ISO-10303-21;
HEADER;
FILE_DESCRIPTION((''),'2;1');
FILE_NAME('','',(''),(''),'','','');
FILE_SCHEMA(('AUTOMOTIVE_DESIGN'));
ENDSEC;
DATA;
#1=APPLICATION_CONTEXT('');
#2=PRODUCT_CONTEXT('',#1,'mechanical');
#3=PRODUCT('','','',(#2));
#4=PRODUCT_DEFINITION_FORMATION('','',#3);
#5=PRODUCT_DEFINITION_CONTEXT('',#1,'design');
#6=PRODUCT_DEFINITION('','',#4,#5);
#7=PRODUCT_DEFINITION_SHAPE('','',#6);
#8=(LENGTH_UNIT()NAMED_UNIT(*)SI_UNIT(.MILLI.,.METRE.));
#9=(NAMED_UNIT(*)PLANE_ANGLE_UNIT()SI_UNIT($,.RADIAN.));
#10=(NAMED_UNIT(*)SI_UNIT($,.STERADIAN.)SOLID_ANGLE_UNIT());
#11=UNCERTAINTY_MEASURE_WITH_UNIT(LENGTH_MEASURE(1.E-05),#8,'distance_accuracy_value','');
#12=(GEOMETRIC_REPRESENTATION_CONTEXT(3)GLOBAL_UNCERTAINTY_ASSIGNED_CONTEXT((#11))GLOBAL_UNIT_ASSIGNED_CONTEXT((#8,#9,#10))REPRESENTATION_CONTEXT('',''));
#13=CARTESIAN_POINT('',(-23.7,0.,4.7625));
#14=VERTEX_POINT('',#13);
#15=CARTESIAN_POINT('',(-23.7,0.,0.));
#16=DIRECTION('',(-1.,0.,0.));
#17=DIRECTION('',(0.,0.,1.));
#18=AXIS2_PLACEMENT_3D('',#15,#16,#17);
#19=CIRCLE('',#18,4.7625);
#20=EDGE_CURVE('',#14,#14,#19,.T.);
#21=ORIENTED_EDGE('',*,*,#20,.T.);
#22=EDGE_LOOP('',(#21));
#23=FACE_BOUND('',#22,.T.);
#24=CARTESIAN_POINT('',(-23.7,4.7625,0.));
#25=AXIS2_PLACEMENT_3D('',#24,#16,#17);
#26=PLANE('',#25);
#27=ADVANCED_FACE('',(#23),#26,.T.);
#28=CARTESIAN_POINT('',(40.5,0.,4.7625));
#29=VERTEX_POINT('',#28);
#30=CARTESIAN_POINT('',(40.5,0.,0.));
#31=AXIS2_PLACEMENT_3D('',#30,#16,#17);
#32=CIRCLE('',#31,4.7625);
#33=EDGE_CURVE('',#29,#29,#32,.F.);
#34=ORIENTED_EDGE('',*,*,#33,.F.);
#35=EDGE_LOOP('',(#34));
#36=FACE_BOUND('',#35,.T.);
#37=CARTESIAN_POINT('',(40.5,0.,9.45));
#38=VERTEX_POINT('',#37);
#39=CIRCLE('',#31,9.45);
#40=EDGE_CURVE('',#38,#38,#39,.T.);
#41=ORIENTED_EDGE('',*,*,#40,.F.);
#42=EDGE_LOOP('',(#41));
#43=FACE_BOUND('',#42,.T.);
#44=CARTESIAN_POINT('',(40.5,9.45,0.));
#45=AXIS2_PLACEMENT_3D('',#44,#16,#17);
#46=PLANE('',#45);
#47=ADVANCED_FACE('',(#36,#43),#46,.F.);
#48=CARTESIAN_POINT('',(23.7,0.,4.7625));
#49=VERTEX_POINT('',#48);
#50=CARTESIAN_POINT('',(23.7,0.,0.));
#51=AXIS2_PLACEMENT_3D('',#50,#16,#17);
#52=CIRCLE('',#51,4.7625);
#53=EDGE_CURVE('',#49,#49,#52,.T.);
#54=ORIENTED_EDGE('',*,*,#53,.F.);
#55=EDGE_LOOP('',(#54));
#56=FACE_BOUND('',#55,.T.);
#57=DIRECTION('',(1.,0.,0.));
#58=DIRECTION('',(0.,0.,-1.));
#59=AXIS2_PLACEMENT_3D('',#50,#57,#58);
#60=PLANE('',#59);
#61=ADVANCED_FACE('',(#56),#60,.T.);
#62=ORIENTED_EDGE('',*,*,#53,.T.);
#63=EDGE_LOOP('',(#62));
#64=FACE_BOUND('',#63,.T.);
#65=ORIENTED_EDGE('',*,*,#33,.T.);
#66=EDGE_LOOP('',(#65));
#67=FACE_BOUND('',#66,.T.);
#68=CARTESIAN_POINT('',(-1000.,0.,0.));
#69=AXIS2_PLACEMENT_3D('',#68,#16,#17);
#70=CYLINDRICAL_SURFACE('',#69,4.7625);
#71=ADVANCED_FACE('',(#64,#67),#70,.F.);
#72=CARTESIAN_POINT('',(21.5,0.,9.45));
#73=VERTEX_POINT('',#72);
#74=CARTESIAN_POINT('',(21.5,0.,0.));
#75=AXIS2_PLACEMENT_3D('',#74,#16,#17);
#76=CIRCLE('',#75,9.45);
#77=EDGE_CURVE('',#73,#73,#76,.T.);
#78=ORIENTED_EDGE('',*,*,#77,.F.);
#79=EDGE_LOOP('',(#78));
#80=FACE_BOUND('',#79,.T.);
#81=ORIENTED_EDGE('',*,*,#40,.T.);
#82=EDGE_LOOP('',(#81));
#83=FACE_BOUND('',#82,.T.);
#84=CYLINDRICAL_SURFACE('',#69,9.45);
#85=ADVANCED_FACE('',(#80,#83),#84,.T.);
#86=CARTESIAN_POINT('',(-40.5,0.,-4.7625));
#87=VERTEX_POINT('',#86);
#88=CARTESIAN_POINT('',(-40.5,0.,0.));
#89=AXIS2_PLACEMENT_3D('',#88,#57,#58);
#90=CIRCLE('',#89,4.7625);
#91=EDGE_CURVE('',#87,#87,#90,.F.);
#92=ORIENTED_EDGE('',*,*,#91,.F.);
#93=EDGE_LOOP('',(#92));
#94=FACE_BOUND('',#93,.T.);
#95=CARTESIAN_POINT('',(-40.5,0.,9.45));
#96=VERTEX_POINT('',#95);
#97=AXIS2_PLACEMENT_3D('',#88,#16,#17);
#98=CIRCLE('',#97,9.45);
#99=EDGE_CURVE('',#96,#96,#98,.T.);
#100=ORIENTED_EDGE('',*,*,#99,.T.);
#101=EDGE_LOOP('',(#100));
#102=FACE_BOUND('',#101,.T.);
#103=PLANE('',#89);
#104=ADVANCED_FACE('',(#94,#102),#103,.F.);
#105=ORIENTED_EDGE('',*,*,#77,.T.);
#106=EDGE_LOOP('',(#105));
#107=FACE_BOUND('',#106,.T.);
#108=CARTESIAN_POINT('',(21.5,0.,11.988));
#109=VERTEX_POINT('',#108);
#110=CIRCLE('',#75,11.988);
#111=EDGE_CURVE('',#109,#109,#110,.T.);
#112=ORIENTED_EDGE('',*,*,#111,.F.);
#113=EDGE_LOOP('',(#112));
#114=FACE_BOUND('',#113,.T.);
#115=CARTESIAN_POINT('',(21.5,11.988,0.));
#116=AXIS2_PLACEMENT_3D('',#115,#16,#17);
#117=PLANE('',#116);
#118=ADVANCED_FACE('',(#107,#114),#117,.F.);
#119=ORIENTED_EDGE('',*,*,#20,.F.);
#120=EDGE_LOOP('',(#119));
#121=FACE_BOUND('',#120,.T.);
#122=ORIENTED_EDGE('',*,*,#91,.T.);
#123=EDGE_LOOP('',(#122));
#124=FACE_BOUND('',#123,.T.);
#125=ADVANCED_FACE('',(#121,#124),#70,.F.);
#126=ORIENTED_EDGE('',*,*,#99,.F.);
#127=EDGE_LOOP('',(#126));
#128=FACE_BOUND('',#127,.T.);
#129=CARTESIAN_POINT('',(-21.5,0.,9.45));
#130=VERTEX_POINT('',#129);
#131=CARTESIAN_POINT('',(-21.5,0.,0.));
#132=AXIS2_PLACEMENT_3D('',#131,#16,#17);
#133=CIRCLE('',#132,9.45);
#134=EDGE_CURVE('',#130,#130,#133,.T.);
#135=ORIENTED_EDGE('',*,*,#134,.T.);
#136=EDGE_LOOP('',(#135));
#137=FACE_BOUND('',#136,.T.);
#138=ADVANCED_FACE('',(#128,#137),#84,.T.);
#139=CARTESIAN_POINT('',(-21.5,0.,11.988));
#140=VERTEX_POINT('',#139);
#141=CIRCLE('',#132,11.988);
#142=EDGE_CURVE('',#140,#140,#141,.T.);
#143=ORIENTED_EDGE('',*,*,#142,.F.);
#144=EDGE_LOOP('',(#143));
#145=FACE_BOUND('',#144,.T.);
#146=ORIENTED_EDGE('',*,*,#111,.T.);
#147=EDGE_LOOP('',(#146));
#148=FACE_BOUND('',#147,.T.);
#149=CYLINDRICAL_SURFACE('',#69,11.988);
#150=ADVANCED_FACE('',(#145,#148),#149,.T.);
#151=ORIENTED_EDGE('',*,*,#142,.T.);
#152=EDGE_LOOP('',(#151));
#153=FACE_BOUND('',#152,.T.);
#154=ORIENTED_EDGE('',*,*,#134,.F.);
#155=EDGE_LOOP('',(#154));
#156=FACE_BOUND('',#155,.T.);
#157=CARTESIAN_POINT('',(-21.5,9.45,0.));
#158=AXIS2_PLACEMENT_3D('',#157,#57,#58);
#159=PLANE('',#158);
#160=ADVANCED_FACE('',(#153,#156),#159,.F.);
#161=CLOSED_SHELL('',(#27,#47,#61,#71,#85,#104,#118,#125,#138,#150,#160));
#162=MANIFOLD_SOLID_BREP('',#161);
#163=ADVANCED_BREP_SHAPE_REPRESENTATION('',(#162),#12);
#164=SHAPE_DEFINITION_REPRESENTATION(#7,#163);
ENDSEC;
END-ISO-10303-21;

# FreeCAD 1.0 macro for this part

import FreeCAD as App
import Part
import Sketcher
from FreeCAD import Vector
Q = App.Units.Quantity

doc = App.newDocument("Part")
body = doc.addObject("PartDesign::Body", "Body")

# Sketch on XY plane
sketch1 = body.newObject("Sketcher::SketchObject", "Sketch")
sketch1.AttachmentSupport = (doc.getObject("XY_Plane"), [""])
sketch1.MapMode = "FlatFace"
sketch1.addGeometry(Part.LineSegment(Vector(-40.5, 9.45, 0), Vector(-40.5, 0, 0)), False)
sketch1.addGeometry(Part.LineSegment(Vector(-40.5, 0, 0), Vector(40.5, 0, 0)), False)
sketch1.addGeometry(Part.LineSegment(Vector(40.5, 0, 0), Vector(40.5, 9.45, 0)), False)
sketch1.addGeometry(Part.LineSegment(Vector(40.5, 9.45, 0), Vector(21.5, 9.45, 0)), False)
sketch1.addGeometry(Part.LineSegment(Vector(21.5, 9.45, 0), Vector(21.5, 11.988, 0)), False)
sketch1.addGeometry(Part.LineSegment(Vector(21.5, 11.988, 0), Vector(-21.5, 11.988, 0)), False)
sketch1.addGeometry(Part.LineSegment(Vector(-21.5, 11.988, 0), Vector(-21.5, 9.45, 0)), False)
sketch1.addGeometry(Part.LineSegment(Vector(-21.5, 9.45, 0), Vector(-40.5, 9.45, 0)), False)
sketch1.addConstraint(Sketcher.Constraint("Coincident", 0, 2, 1, 1))
sketch1.addConstraint(Sketcher.Constraint("Coincident", 1, 2, 2, 1))
sketch1.addConstraint(Sketcher.Constraint("Coincident", 2, 2, 3, 1))
sketch1.addConstraint(Sketcher.Constraint("Coincident", 3, 2, 4, 1))
sketch1.addConstraint(Sketcher.Constraint("Coincident", 4, 2, 5, 1))
sketch1.addConstraint(Sketcher.Constraint("Coincident", 5, 2, 6, 1))
sketch1.addConstraint(Sketcher.Constraint("Coincident", 6, 2, 7, 1))
sketch1.addConstraint(Sketcher.Constraint("Coincident", 7, 2, 0, 1))
sketch1.addConstraint(Sketcher.Constraint("Vertical", 0))
sketch1.addConstraint(Sketcher.Constraint("Horizontal", 1))
sketch1.addConstraint(Sketcher.Constraint("Vertical", 2))
sketch1.addConstraint(Sketcher.Constraint("Horizontal", 3))
sketch1.addConstraint(Sketcher.Constraint("Vertical", 4))
sketch1.addConstraint(Sketcher.Constraint("Horizontal", 5))
sketch1.addConstraint(Sketcher.Constraint("Vertical", 6))
sketch1.addConstraint(Sketcher.Constraint("Horizontal", 7))
sketch1.addConstraint(Sketcher.Constraint("Symmetric", 0, 2, 1, 2, -1, 1))
sketch1.addConstraint(Sketcher.Constraint("Symmetric", 3, 2, 6, 2, -2))
sketch1.addConstraint(Sketcher.Constraint("DistanceX", 1, 1, 1, 2, Q("81 mm")))
sketch1.addConstraint(Sketcher.Constraint("DistanceX", 3, 2, 3, 1, Q("19 mm")))
sketch1.addConstraint(Sketcher.Constraint("DistanceY", 0, 2, 0, 1, Q("9.45 mm")))
sketch1.addConstraint(Sketcher.Constraint("DistanceY", 4, 1, 4, 2, Q("2.538 mm")))
revolution = body.newObject("PartDesign::Revolution", "Revolution")
revolution.Profile = sketch1
revolution.ReferenceAxis = (sketch1, ["H_Axis"])
revolution.Angle = 360

# Sketch on XY plane
sketch2 = body.newObject("Sketcher::SketchObject", "Sketch001")
sketch2.AttachmentSupport = (doc.getObject("XY_Plane"), [""])
sketch2.MapMode = "FlatFace"
sketch2.addGeometry(Part.LineSegment(Vector(-41.5, 4.7625, 0), Vector(-41.5, 0, 0)), False)
sketch2.addGeometry(Part.LineSegment(Vector(-41.5, 0, 0), Vector(-23.7, 0, 0)), False)
sketch2.addGeometry(Part.LineSegment(Vector(-23.7, 0, 0), Vector(-23.7, 4.7625, 0)), False)
sketch2.addGeometry(Part.LineSegment(Vector(-23.7, 4.7625, 0), Vector(-41.5, 4.7625, 0)), False)
sketch2.addConstraint(Sketcher.Constraint("Coincident", 0, 2, 1, 1))
sketch2.addConstraint(Sketcher.Constraint("Coincident", 1, 2, 2, 1))
sketch2.addConstraint(Sketcher.Constraint("Coincident", 2, 2, 3, 1))
sketch2.addConstraint(Sketcher.Constraint("Coincident", 3, 2, 0, 1))
sketch2.addConstraint(Sketcher.Constraint("Vertical", 0))
sketch2.addConstraint(Sketcher.Constraint("Horizontal", 1))
sketch2.addConstraint(Sketcher.Constraint("Vertical", 2))
sketch2.addConstraint(Sketcher.Constraint("Horizontal", 3))
sketch2.addConstraint(Sketcher.Constraint("PointOnObject", 0, 2, -1))
sketch2.addConstraint(Sketcher.Constraint("DistanceX", 1, 1, 1, 2, Q("17.8 mm")))
sketch2.addConstraint(Sketcher.Constraint("DistanceX", 0, 2, -1, 1, Q("41.5 mm")))
sketch2.addConstraint(Sketcher.Constraint("DistanceY", 0, 2, 0, 1, Q("4.7625 mm")))
groove = body.newObject("PartDesign::Groove", "Groove")
groove.Profile = sketch2
groove.ReferenceAxis = (sketch2, ["H_Axis"])
groove.Angle = 360

# Sketch on XY plane
sketch3 = body.newObject("Sketcher::SketchObject", "Sketch002")
sketch3.AttachmentSupport = (doc.getObject("XY_Plane"), [""])
sketch3.MapMode = "FlatFace"
sketch3.addGeometry(Part.LineSegment(Vector(23.7, 4.7625, 0), Vector(23.7, 0, 0)), False)
sketch3.addGeometry(Part.LineSegment(Vector(23.7, 0, 0), Vector(41.5, 0, 0)), False)
sketch3.addGeometry(Part.LineSegment(Vector(41.5, 0, 0), Vector(41.5, 4.7625, 0)), False)
sketch3.addGeometry(Part.LineSegment(Vector(41.5, 4.7625, 0), Vector(23.7, 4.7625, 0)), False)
sketch3.addConstraint(Sketcher.Constraint("Coincident", 0, 2, 1, 1))
sketch3.addConstraint(Sketcher.Constraint("Coincident", 1, 2, 2, 1))
sketch3.addConstraint(Sketcher.Constraint("Coincident", 2, 2, 3, 1))
sketch3.addConstraint(Sketcher.Constraint("Coincident", 3, 2, 0, 1))
sketch3.addConstraint(Sketcher.Constraint("Vertical", 0))
sketch3.addConstraint(Sketcher.Constraint("Horizontal", 1))
sketch3.addConstraint(Sketcher.Constraint("Vertical", 2))
sketch3.addConstraint(Sketcher.Constraint("Horizontal", 3))
sketch3.addConstraint(Sketcher.Constraint("PointOnObject", 0, 2, -1))
sketch3.addConstraint(Sketcher.Constraint("DistanceX", 1, 1, 1, 2, Q("17.8 mm")))
sketch3.addConstraint(Sketcher.Constraint("DistanceX", -1, 1, 0, 2, Q("23.7 mm")))
sketch3.addConstraint(Sketcher.Constraint("DistanceY", 0, 2, 0, 1, Q("4.7625 mm")))
groove2 = body.newObject("PartDesign::Groove", "Groove001")
groove2.Profile = sketch3
groove2.ReferenceAxis = (sketch3, ["H_Axis"])
groove2.Angle = 360

doc.recompute()
